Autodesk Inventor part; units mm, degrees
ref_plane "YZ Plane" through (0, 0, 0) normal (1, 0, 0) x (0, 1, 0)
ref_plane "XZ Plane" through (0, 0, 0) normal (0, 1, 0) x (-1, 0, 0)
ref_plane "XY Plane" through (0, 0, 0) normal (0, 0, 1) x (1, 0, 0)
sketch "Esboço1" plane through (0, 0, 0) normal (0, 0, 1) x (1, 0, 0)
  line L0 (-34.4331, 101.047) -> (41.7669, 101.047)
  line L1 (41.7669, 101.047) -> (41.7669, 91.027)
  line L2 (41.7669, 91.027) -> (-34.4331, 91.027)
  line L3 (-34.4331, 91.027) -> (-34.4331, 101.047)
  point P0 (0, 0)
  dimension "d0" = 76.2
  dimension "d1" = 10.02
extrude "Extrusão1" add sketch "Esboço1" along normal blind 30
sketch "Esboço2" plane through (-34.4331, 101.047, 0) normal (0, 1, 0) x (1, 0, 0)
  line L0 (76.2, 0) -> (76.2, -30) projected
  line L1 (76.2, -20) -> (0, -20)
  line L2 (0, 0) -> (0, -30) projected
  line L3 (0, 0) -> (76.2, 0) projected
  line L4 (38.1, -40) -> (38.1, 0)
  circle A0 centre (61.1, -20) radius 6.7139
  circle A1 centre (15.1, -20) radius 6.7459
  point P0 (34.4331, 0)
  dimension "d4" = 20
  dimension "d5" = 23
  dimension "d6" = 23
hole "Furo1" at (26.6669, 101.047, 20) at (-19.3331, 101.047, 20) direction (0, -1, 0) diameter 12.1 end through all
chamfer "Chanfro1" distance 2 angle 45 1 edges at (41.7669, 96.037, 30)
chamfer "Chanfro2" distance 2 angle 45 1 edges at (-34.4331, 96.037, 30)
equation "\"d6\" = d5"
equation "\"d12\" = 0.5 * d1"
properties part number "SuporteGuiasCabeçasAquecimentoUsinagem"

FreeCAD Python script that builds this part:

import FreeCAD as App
import Part
import Sketcher

V = App.Vector
Q = App.Units.Quantity


def edges_at(feature, points):
    """Names of the edges that pass closest to the given points."""
    edges = feature.Shape.Edges
    near = lambda p: min(range(len(edges)), key=lambda i: edges[i].distToShape(Part.Vertex(*p))[0])
    return sorted({f"Edge{near(p) + 1}" for p in points})


def add_polygon(sketch, points):
    """Adds a closed chain of lines whose ends are joined by coincident constraints."""
    first, n = sketch.GeometryCount, len(points)
    for a, b in zip(points, points[1:] + points[:1]):
        sketch.addGeometry(Part.LineSegment(App.Vector(*a, 0), App.Vector(*b, 0)), False)
    for i in range(n):
        sketch.addConstraint(Sketcher.Constraint("Coincident", first + i, 2, first + (i + 1) % n, 1))

doc = App.newDocument("Part")
body = doc.addObject("PartDesign::Body", "Body")

sketch1 = doc.addObject("Sketcher::SketchObject", "Sketch")
body.addObject(sketch1)
sketch1.AttachmentSupport = (doc.XY_Plane, [""])
sketch1.MapMode = "FlatFace"
add_polygon(sketch1, [(42, 101), (-34, 101), (-34, 91), (42, 91)])
sketch1.addConstraint([
    Sketcher.Constraint("Horizontal", 0),
    Sketcher.Constraint("Vertical", 1),
    Sketcher.Constraint("Horizontal", 2),
    Sketcher.Constraint("Vertical", 3),
    Sketcher.Constraint("DistanceX", 0, 2, 0, 1, Q("76.2 mm")),
    Sketcher.Constraint("DistanceY", 1, 2, 1, 1, Q("10.02 mm")),
    Sketcher.Constraint("DistanceX", 0, 2, -1, 1, Q("34.433 mm")),
    Sketcher.Constraint("DistanceY", -1, 1, 0, 2, Q("101.047 mm")),
])
pad1 = doc.addObject("PartDesign::Pad", "Pad")
body.addObject(pad1)
pad1.Profile = sketch1
pad1.Length = 30

sketch2 = doc.addObject("Sketcher::SketchObject", "Sketch001")
body.addObject(sketch2)
sketch2.AttachmentSupport = (doc.XZ_Plane, [""])
sketch2.MapMode = "FlatFace"
sketch2.AttachmentOffset = App.Placement(V(0, 0, -101.047), App.Rotation())
sketch2.addGeometry([
    Part.Circle(V(27, 20, 0), V(0, 0, 1), 6),
    Part.Circle(V(-19, 20, 0), V(0, 0, 1), 6),
], False)
sketch2.addConstraint([
    Sketcher.Constraint("Equal", 0, 1),
    Sketcher.Constraint("Horizontal", 0, 3, 1, 3),
    Sketcher.Constraint("Diameter", 0, Q("12.1 mm")),
    Sketcher.Constraint("DistanceY", -1, 1, 0, 3, Q("20 mm")),
    Sketcher.Constraint("DistanceX", 1, 3, 0, 3, Q("46 mm")),
    Sketcher.Constraint("DistanceX", -1, 1, 0, 3, Q("26.667 mm")),
])
doc.recompute()
hole = doc.addObject("PartDesign::Hole", "Hole")
body.addObject(hole)
hole.Profile = sketch2
hole.ThreadType = "None"
hole.Diameter = 12.1
hole.DepthType = "ThroughAll"
hole.Reversed = True
doc.recompute()

chamfer = doc.addObject("PartDesign::Chamfer", "Chamfer")
body.addObject(chamfer)
chamfer.Base = (hole, edges_at(hole, [(41.767, 96.037, 30)]))
chamfer.Size = 2
doc.recompute()

chamfer2 = doc.addObject("PartDesign::Chamfer", "Chamfer001")
body.addObject(chamfer2)
chamfer2.Base = (chamfer, edges_at(chamfer, [(-34.433, 96.037, 30)]))
chamfer2.Size = 2

doc.recompute()
